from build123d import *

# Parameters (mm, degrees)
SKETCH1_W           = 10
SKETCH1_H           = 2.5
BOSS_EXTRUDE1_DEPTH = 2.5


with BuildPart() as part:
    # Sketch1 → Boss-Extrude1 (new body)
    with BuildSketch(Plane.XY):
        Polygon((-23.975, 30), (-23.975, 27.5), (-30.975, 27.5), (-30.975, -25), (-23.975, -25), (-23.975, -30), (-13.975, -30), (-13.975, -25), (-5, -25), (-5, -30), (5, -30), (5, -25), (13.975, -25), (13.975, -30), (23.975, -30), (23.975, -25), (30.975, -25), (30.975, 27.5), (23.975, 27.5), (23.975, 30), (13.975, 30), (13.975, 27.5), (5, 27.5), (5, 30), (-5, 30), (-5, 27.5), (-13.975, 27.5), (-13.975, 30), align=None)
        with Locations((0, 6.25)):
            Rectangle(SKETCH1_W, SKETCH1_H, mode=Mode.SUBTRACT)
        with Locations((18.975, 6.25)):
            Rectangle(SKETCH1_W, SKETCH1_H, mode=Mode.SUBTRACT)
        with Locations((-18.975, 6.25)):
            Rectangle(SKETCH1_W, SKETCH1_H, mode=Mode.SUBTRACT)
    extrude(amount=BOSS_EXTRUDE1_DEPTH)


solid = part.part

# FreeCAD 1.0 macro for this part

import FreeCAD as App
import Part
import Sketcher
from FreeCAD import Vector
Q = App.Units.Quantity


def add_polygon(sketch, points):
    """Adds a closed chain of lines whose ends are joined by coincident constraints."""
    first, n = sketch.GeometryCount, len(points)
    for a, b in zip(points, points[1:] + points[:1]):
        sketch.addGeometry(Part.LineSegment(App.Vector(*a, 0), App.Vector(*b, 0)), False)
    for i in range(n):
        sketch.addConstraint(Sketcher.Constraint("Coincident", first + i, 2, first + (i + 1) % n, 1))

doc = App.newDocument("Part")
body = doc.addObject("PartDesign::Body", "Body")

# Sketch on XY plane
sketch1 = body.newObject("Sketcher::SketchObject", "Sketch")
sketch1.AttachmentSupport = (doc.getObject("XY_Plane"), [""])
sketch1.MapMode = "FlatFace"
add_polygon(sketch1, [(-24, 30), (-24, 27.5), (-31, 27.5), (-31, -25), (-24, -25), (-24, -30), (-14, -30), (-14, -25), (-5, -25), (-5, -30), (5, -30), (5, -25), (14, -25), (14, -30), (24, -30), (24, -25), (31, -25), (31, 27.5), (24, 27.5), (24, 30), (14, 30), (14, 27.5), (5, 27.5), (5, 30), (-5, 30), (-5, 27.5), (-14, 27.5), (-14, 30)])  # lines 0-27
add_polygon(sketch1, [(-14, 5), (-24, 5), (-24, 7.5), (-14, 7.5)])  # lines 28-31
add_polygon(sketch1, [(5, 5), (-5, 5), (-5, 7.5), (5, 7.5)])  # lines 32-35
add_polygon(sketch1, [(24, 5), (14, 5), (14, 7.5), (24, 7.5)])  # lines 36-39
sketch1.addConstraint([
    Sketcher.Constraint("Vertical", 0),
    Sketcher.Constraint("Horizontal", 1),
    Sketcher.Constraint("Vertical", 2),
    Sketcher.Constraint("Horizontal", 3),
    Sketcher.Constraint("Vertical", 4),
    Sketcher.Constraint("Horizontal", 5),
    Sketcher.Constraint("Vertical", 6),
    Sketcher.Constraint("Horizontal", 7),
    Sketcher.Constraint("Vertical", 8),
    Sketcher.Constraint("Horizontal", 9),
    Sketcher.Constraint("Vertical", 10),
    Sketcher.Constraint("Horizontal", 11),
    Sketcher.Constraint("Vertical", 12),
    Sketcher.Constraint("Horizontal", 13),
    Sketcher.Constraint("Vertical", 14),
    Sketcher.Constraint("Horizontal", 15),
    Sketcher.Constraint("Vertical", 16),
    Sketcher.Constraint("Horizontal", 17),
    Sketcher.Constraint("Vertical", 18),
    Sketcher.Constraint("Horizontal", 19),
    Sketcher.Constraint("Vertical", 20),
    Sketcher.Constraint("Horizontal", 21),
    Sketcher.Constraint("Vertical", 22),
    Sketcher.Constraint("Horizontal", 23),
    Sketcher.Constraint("Vertical", 24),
    Sketcher.Constraint("Horizontal", 25),
    Sketcher.Constraint("Vertical", 26),
    Sketcher.Constraint("Horizontal", 27),
    Sketcher.Constraint("Horizontal", 28),
    Sketcher.Constraint("Vertical", 29),
    Sketcher.Constraint("Horizontal", 30),
    Sketcher.Constraint("Vertical", 31),
    Sketcher.Constraint("Horizontal", 32),
    Sketcher.Constraint("Vertical", 33),
    Sketcher.Constraint("Horizontal", 34),
    Sketcher.Constraint("Vertical", 35),
    Sketcher.Constraint("Horizontal", 36),
    Sketcher.Constraint("Vertical", 37),
    Sketcher.Constraint("Horizontal", 38),
    Sketcher.Constraint("Vertical", 39),
    Sketcher.Constraint("Symmetric", 4, 2, 18, 2, -1, 1),
    Sketcher.Constraint("Symmetric", 8, 2, 22, 2, -1, 1),
    Sketcher.Constraint("Symmetric", 12, 2, 26, 2, -1, 1),
    Sketcher.Constraint("Symmetric", 7, 2, 10, 2, -2),
    Sketcher.Constraint("Symmetric", 5, 2, 12, 2, -2),
    Sketcher.Constraint("Symmetric", 3, 2, 14, 2, -2),
    Sketcher.Constraint("Symmetric", 1, 2, 16, 2, -2),
    Sketcher.Constraint("Symmetric", 21, 2, 24, 2, -2),
    Sketcher.Constraint("Symmetric", 31, 2, 36, 2, -2),
    Sketcher.Constraint("Symmetric", 29, 2, 38, 2, -2),
    Sketcher.Constraint("Horizontal", 3, 2, 6, 2),
    Sketcher.Constraint("Horizontal", 5, 2, 8, 2),
    Sketcher.Constraint("Horizontal", 17, 2, 20, 2),
    Sketcher.Constraint("Horizontal", 31, 2, 32, 2),
    Sketcher.Constraint("Horizontal", 30, 2, 33, 2),
    Sketcher.Constraint("Vertical", 0, 2, 3, 2),
    Sketcher.Constraint("Vertical", 12, 2, 19, 2),
    Sketcher.Constraint("Vertical", 27, 2, 28, 2),
    Sketcher.Constraint("Vertical", 26, 2, 30, 2),
    Sketcher.Constraint("Vertical", 24, 2, 32, 2),
    Sketcher.Constraint("Vertical", 22, 2, 34, 2),
    Sketcher.Constraint("Equal", 5, 9),
    Sketcher.Constraint("Equal", 26, 29),
    Sketcher.Constraint("DistanceX", 1, 2, 1, 1, Q("7 mm")),
    Sketcher.Constraint("DistanceX", 5, 1, 5, 2, Q("10 mm")),
    Sketcher.Constraint("DistanceY", 4, 2, 4, 1, Q("5 mm")),
    Sketcher.Constraint("DistanceY", 0, 2, 0, 1, Q("2.5 mm")),
    Sketcher.Constraint("DistanceY", 2, 2, 2, 1, Q("52.5 mm")),
    Sketcher.Constraint("DistanceY", -1, 1, 28, 2, Q("5 mm")),
    Sketcher.Constraint("DistanceX", 7, 1, 7, 2, Q("8.975 mm")),
])
pad1 = body.newObject("PartDesign::Pad", "Pad")
pad1.Profile = sketch1
pad1.Length = 2.5

doc.recompute()
